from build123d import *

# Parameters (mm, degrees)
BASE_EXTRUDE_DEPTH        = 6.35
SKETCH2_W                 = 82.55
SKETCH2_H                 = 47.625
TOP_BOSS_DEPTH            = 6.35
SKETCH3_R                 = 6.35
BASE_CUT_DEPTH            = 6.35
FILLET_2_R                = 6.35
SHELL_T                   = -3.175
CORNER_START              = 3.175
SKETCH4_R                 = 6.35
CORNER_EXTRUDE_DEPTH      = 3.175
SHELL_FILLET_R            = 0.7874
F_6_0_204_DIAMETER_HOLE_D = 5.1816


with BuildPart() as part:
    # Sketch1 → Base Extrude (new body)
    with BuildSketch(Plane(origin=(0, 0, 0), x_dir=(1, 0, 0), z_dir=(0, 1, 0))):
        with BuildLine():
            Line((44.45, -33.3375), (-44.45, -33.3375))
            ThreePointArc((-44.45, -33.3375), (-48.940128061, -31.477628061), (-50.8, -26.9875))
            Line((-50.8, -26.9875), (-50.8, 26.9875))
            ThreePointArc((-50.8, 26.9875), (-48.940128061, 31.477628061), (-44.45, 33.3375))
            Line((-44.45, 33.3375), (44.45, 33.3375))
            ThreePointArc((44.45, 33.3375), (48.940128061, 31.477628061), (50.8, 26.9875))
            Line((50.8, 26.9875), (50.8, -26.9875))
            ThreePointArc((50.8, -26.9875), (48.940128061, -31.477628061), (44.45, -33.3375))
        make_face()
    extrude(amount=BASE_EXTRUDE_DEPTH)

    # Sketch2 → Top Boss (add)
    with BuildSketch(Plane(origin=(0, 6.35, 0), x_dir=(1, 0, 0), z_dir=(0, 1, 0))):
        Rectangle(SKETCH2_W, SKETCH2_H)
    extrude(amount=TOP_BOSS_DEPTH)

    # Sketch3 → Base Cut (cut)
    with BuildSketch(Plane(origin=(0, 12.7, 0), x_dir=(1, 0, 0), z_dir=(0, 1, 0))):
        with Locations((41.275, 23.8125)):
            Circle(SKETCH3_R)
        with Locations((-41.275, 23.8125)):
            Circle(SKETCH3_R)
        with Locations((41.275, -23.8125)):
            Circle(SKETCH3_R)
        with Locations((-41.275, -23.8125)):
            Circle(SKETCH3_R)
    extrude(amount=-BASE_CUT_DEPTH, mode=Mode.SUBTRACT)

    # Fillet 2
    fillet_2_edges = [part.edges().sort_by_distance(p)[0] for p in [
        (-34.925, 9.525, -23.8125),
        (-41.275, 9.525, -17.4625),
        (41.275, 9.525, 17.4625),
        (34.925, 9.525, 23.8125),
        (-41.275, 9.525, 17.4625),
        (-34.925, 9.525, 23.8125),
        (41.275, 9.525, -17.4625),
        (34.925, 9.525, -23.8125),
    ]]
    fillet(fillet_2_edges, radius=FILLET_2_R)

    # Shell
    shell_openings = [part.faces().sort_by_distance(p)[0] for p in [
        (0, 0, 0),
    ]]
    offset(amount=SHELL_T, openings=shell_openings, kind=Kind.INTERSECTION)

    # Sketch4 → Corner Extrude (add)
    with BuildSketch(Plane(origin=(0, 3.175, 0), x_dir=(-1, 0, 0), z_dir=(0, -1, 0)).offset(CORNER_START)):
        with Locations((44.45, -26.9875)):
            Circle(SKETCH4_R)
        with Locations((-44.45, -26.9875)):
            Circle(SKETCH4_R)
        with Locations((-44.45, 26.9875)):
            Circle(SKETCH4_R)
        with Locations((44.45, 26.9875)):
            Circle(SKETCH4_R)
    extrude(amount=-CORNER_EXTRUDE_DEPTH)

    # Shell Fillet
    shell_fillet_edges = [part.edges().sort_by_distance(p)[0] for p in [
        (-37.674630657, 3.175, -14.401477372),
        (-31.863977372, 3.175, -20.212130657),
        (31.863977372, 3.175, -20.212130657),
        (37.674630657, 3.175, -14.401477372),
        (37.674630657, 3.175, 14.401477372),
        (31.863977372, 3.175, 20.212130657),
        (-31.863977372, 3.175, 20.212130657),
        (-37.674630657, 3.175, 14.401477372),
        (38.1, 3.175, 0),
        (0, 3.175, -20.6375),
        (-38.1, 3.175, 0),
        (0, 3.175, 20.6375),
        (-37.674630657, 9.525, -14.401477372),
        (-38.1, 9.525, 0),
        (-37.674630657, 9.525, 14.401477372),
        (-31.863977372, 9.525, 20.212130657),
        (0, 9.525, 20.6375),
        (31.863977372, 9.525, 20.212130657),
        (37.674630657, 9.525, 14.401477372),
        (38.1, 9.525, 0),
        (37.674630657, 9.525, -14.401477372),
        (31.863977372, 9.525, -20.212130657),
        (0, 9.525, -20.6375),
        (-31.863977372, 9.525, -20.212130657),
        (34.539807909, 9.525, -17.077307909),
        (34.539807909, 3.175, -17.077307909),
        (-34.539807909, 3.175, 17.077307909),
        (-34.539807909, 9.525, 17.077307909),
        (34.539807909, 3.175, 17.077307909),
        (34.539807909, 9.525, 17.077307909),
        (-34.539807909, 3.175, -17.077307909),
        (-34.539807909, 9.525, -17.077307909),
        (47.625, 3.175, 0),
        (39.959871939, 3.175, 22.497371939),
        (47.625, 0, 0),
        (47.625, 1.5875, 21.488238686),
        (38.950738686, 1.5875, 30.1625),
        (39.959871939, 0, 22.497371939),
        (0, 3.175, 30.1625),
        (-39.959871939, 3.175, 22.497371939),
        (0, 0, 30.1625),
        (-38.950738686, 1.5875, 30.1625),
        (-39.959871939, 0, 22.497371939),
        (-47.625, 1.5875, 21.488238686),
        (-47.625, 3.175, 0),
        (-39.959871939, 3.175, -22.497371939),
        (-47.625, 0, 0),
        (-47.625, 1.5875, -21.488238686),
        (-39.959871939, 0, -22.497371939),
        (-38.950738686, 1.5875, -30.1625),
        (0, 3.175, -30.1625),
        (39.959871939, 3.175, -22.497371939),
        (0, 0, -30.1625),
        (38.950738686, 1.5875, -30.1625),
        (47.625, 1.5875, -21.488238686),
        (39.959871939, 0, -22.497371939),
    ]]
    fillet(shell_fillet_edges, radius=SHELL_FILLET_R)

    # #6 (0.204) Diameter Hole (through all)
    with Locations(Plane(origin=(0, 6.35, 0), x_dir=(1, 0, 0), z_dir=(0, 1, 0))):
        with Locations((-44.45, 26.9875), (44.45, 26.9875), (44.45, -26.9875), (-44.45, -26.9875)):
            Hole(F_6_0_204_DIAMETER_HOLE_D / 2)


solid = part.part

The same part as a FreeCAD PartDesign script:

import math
import FreeCAD as App
import Part
import Sketcher
Q = App.Units.Quantity


def edges_at(feature, points):
    """Names of the edges that pass closest to the given points."""
    edges = feature.Shape.Edges
    near = lambda p: min(range(len(edges)), key=lambda i: edges[i].distToShape(Part.Vertex(*p))[0])
    return sorted({f"Edge{near(p) + 1}" for p in points})


def faces_at(feature, points):
    """Names of the faces that lie closest to the given points."""
    faces = feature.Shape.Faces
    near = lambda p: min(range(len(faces)), key=lambda i: faces[i].distToShape(Part.Vertex(*p))[0])
    return sorted({f"Face{near(p) + 1}" for p in points})


def add_polygon(sketch, points):
    """Adds a closed chain of lines whose ends are joined by coincident constraints."""
    first, n = sketch.GeometryCount, len(points)
    for a, b in zip(points, points[1:] + points[:1]):
        sketch.addGeometry(Part.LineSegment(App.Vector(*a, 0), App.Vector(*b, 0)), False)
    for i in range(n):
        sketch.addConstraint(Sketcher.Constraint("Coincident", first + i, 2, first + (i + 1) % n, 1))

doc = App.newDocument("Part")
body = doc.addObject("PartDesign::Body", "Body")

# Sketch on XZ plane
sketch1 = body.newObject("Sketcher::SketchObject", "Sketch")
sketch1.AttachmentSupport = (doc.getObject("XZ_Plane"), [""])
sketch1.MapMode = "FlatFace"
sketch1.addGeometry(Part.LineSegment(App.Vector(-44, 33, 0), App.Vector(44, 33, 0)), False)
sketch1.addGeometry(Part.ArcOfCircle(Part.Circle(App.Vector(44, 27, 0), App.Vector(0, 0, 1), 6), math.radians(0), math.radians(90)), False)
sketch1.addGeometry(Part.LineSegment(App.Vector(51, 27, 0), App.Vector(51, -27, 0)), False)
sketch1.addGeometry(Part.ArcOfCircle(Part.Circle(App.Vector(44, -27, 0), App.Vector(0, 0, 1), 6), math.radians(-90), math.radians(0)), False)
sketch1.addGeometry(Part.LineSegment(App.Vector(44, -33, 0), App.Vector(-44, -33, 0)), False)
sketch1.addGeometry(Part.ArcOfCircle(Part.Circle(App.Vector(-44, -27, 0), App.Vector(0, 0, 1), 6), math.radians(180), math.radians(270)), False)
sketch1.addGeometry(Part.LineSegment(App.Vector(-51, -27, 0), App.Vector(-51, 27, 0)), False)
sketch1.addGeometry(Part.ArcOfCircle(Part.Circle(App.Vector(-44, 27, 0), App.Vector(0, 0, 1), 6), math.radians(90), math.radians(180)), False)
sketch1.addConstraint(Sketcher.Constraint("Tangent", 0, 2, 1, 2))
sketch1.addConstraint(Sketcher.Constraint("Tangent", 1, 1, 2, 1))
sketch1.addConstraint(Sketcher.Constraint("Tangent", 2, 2, 3, 2))
sketch1.addConstraint(Sketcher.Constraint("Tangent", 3, 1, 4, 1))
sketch1.addConstraint(Sketcher.Constraint("Tangent", 4, 2, 5, 2))
sketch1.addConstraint(Sketcher.Constraint("Tangent", 5, 1, 6, 1))
sketch1.addConstraint(Sketcher.Constraint("Tangent", 6, 2, 7, 2))
sketch1.addConstraint(Sketcher.Constraint("Tangent", 7, 1, 0, 1))
sketch1.addConstraint(Sketcher.Constraint("Horizontal", 0))
sketch1.addConstraint(Sketcher.Constraint("Vertical", 2))
sketch1.addConstraint(Sketcher.Constraint("Horizontal", 4))
sketch1.addConstraint(Sketcher.Constraint("Vertical", 6))
sketch1.addConstraint(Sketcher.Constraint("Equal", 1, 3))
sketch1.addConstraint(Sketcher.Constraint("Equal", 3, 5))
sketch1.addConstraint(Sketcher.Constraint("Equal", 5, 7))
sketch1.addConstraint(Sketcher.Constraint("Symmetric", 1, 3, 5, 3, -1, 1))
sketch1.addConstraint(Sketcher.Constraint("Radius", 1, Q("0.25 in")))
sketch1.addConstraint(Sketcher.Constraint("DistanceX", 0, 1, 0, 2, Q("3.5 in")))
sketch1.addConstraint(Sketcher.Constraint("DistanceY", 2, 2, 2, 1, Q("2.125 in")))
pad1 = body.newObject("PartDesign::Pad", "Pad")
pad1.Profile = sketch1
pad1.Length = Q("0.25 in")
pad1.Reversed = True

# Sketch on XZ plane
sketch2 = body.newObject("Sketcher::SketchObject", "Sketch001")
sketch2.AttachmentSupport = (doc.getObject("XZ_Plane"), [""])
sketch2.MapMode = "FlatFace"
sketch2.AttachmentOffset = App.Placement(App.Vector(0, 0, -0.25 * 25.4), App.Rotation())
add_polygon(sketch2, [(-41, -24), (-41, 24), (41, 24), (41, -24)])  # lines 0-3
sketch2.addConstraint(Sketcher.Constraint("Vertical", 0))
sketch2.addConstraint(Sketcher.Constraint("Horizontal", 1))
sketch2.addConstraint(Sketcher.Constraint("Vertical", 2))
sketch2.addConstraint(Sketcher.Constraint("Horizontal", 3))
sketch2.addConstraint(Sketcher.Constraint("Symmetric", 0, 2, 2, 2, -1, 1))
sketch2.addConstraint(Sketcher.Constraint("DistanceX", 1, 1, 1, 2, Q("3.25 in")))
sketch2.addConstraint(Sketcher.Constraint("DistanceY", 0, 1, 0, 2, Q("1.875 in")))
pad2 = body.newObject("PartDesign::Pad", "Pad001")
pad2.Profile = sketch2
pad2.Length = Q("0.25 in")
pad2.Reversed = True

# Sketch on XZ plane
sketch3 = body.newObject("Sketcher::SketchObject", "Sketch002")
sketch3.AttachmentSupport = (doc.getObject("XZ_Plane"), [""])
sketch3.MapMode = "FlatFace"
sketch3.AttachmentOffset = App.Placement(App.Vector(0, 0, -0.5 * 25.4), App.Rotation())
sketch3.addGeometry(Part.Circle(App.Vector(41, -24, 0), App.Vector(0, 0, 1), 6), False)
sketch3.addGeometry(Part.Circle(App.Vector(-41, -24, 0), App.Vector(0, 0, 1), 6), False)
sketch3.addGeometry(Part.Circle(App.Vector(41, 24, 0), App.Vector(0, 0, 1), 6), False)
sketch3.addGeometry(Part.Circle(App.Vector(-41, 24, 0), App.Vector(0, 0, 1), 6), False)
sketch3.addConstraint(Sketcher.Constraint("Equal", 0, 1))
sketch3.addConstraint(Sketcher.Constraint("Equal", 1, 2))
sketch3.addConstraint(Sketcher.Constraint("Equal", 2, 3))
sketch3.addConstraint(Sketcher.Constraint("Symmetric", 1, 3, 2, 3, -1, 1))
sketch3.addConstraint(Sketcher.Constraint("Symmetric", 0, 3, 3, 3, -1, 1))
sketch3.addConstraint(Sketcher.Constraint("Symmetric", 0, 3, 1, 3, -2))
sketch3.addConstraint(Sketcher.Constraint("Diameter", 0, Q("0.5 in")))
sketch3.addConstraint(Sketcher.Constraint("DistanceX", 1, 3, 0, 3, Q("3.25 in")))
sketch3.addConstraint(Sketcher.Constraint("DistanceY", 0, 3, -1, 1, Q("0.9375 in")))
pocket1 = body.newObject("PartDesign::Pocket", "Pocket")
pocket1.Profile = sketch3
pocket1.Length = Q("0.25 in")
pocket1.Reversed = True
doc.recompute()

fillet = body.newObject("PartDesign::Fillet", "Fillet")
fillet.Base = (pocket1, edges_at(pocket1, [
    (-34.925, 9.525, -23.812),
    (-41.275, 9.525, -17.462),
    (41.275, 9.525, 17.462),
    (34.925, 9.525, 23.812),
    (-41.275, 9.525, 17.462),
    (-34.925, 9.525, 23.812),
    (41.275, 9.525, -17.462),
    (34.925, 9.525, -23.812),
]))
fillet.Radius = Q("0.25 in")
doc.recompute()

thickness = body.newObject("PartDesign::Thickness", "Thickness")
thickness.Base = (fillet, faces_at(fillet, [(0, 0, 0)]))
thickness.Value = Q("0.125 in")
thickness.Reversed = True
thickness.Join = "Intersection"

# Sketch on XZ plane
sketch4 = body.newObject("Sketcher::SketchObject", "Sketch003")
sketch4.AttachmentSupport = (doc.getObject("XZ_Plane"), [""])
sketch4.MapMode = "FlatFace"
sketch4.addGeometry(Part.Circle(App.Vector(-44, 27, 0), App.Vector(0, 0, 1), 6), False)
sketch4.addGeometry(Part.Circle(App.Vector(44, 27, 0), App.Vector(0, 0, 1), 6), False)
sketch4.addGeometry(Part.Circle(App.Vector(44, -27, 0), App.Vector(0, 0, 1), 6), False)
sketch4.addGeometry(Part.Circle(App.Vector(-44, -27, 0), App.Vector(0, 0, 1), 6), False)
sketch4.addConstraint(Sketcher.Constraint("Equal", 0, 1))
sketch4.addConstraint(Sketcher.Constraint("Equal", 1, 2))
sketch4.addConstraint(Sketcher.Constraint("Equal", 2, 3))
sketch4.addConstraint(Sketcher.Constraint("Symmetric", 0, 3, 2, 3, -1, 1))
sketch4.addConstraint(Sketcher.Constraint("Symmetric", 1, 3, 3, 3, -1, 1))
sketch4.addConstraint(Sketcher.Constraint("Symmetric", 0, 3, 1, 3, -2))
sketch4.addConstraint(Sketcher.Constraint("Diameter", 0, Q("0.5 in")))
sketch4.addConstraint(Sketcher.Constraint("DistanceX", 0, 3, 1, 3, Q("3.5 in")))
sketch4.addConstraint(Sketcher.Constraint("DistanceY", -1, 1, 0, 3, Q("1.0625 in")))
pad3 = body.newObject("PartDesign::Pad", "Pad002")
pad3.Profile = sketch4
pad3.Length = Q("0.125 in")
pad3.Reversed = True
doc.recompute()

fillet2 = body.newObject("PartDesign::Fillet", "Fillet001")
fillet2.Base = (pad3, edges_at(pad3, [
    (-37.675, 3.175, -14.401),
    (-31.864, 3.175, -20.212),
    (31.864, 3.175, -20.212),
    (37.675, 3.175, -14.401),
    (37.675, 3.175, 14.401),
    (31.864, 3.175, 20.212),
    (-31.864, 3.175, 20.212),
    (-37.675, 3.175, 14.401),
    (38.1, 3.175, 0),
    (0, 3.175, -20.637),
    (-38.1, 3.175, 0),
    (0, 3.175, 20.637),
    (-37.675, 9.525, -14.401),
    (-38.1, 9.525, 0),
    (-37.675, 9.525, 14.401),
    (-31.864, 9.525, 20.212),
    (0, 9.525, 20.637),
    (31.864, 9.525, 20.212),
    (37.675, 9.525, 14.401),
    (38.1, 9.525, 0),
    (37.675, 9.525, -14.401),
    (31.864, 9.525, -20.212),
    (0, 9.525, -20.637),
    (-31.864, 9.525, -20.212),
    (34.54, 9.525, -17.077),
    (34.54, 3.175, -17.077),
    (-34.54, 3.175, 17.077),
    (-34.54, 9.525, 17.077),
    (34.54, 3.175, 17.077),
    (34.54, 9.525, 17.077),
    (-34.54, 3.175, -17.077),
    (-34.54, 9.525, -17.077),
    (47.625, 3.175, 0),
    (39.96, 3.175, 22.497),
    (47.625, 0, 0),
    (47.625, 1.587, 21.488),
    (38.951, 1.587, 30.163),
    (39.96, 0, 22.497),
    (0, 3.175, 30.163),
    (-39.96, 3.175, 22.497),
    (0, 0, 30.163),
    (-38.951, 1.587, 30.163),
    (-39.96, 0, 22.497),
    (-47.625, 1.587, 21.488),
    (-47.625, 3.175, 0),
    (-39.96, 3.175, -22.497),
    (-47.625, 0, 0),
    (-47.625, 1.587, -21.488),
    (-39.96, 0, -22.497),
    (-38.951, 1.587, -30.163),
    (0, 3.175, -30.163),
    (39.96, 3.175, -22.497),
    (0, 0, -30.163),
    (38.951, 1.587, -30.163),
    (47.625, 1.587, -21.488),
    (39.96, 0, -22.497),
]))
fillet2.Radius = Q("0.031 in")

# Sketch on XZ plane
sketch5 = body.newObject("Sketcher::SketchObject", "Sketch004")
sketch5.AttachmentSupport = (doc.getObject("XZ_Plane"), [""])
sketch5.MapMode = "FlatFace"
sketch5.AttachmentOffset = App.Placement(App.Vector(0, 0, -0.25 * 25.4), App.Rotation())
sketch5.addGeometry(Part.Circle(App.Vector(-44.5, -27, 0), App.Vector(0, 0, 1), 2.6), False)
sketch5.addGeometry(Part.Circle(App.Vector(44.5, -27, 0), App.Vector(0, 0, 1), 2.6), False)
sketch5.addGeometry(Part.Circle(App.Vector(44.5, 27, 0), App.Vector(0, 0, 1), 2.6), False)
sketch5.addGeometry(Part.Circle(App.Vector(-44.5, 27, 0), App.Vector(0, 0, 1), 2.6), False)
sketch5.addConstraint(Sketcher.Constraint("Equal", 0, 1))
sketch5.addConstraint(Sketcher.Constraint("Equal", 1, 2))
sketch5.addConstraint(Sketcher.Constraint("Equal", 2, 3))
sketch5.addConstraint(Sketcher.Constraint("Symmetric", 0, 3, 2, 3, -1, 1))
sketch5.addConstraint(Sketcher.Constraint("Symmetric", 1, 3, 3, 3, -1, 1))
sketch5.addConstraint(Sketcher.Constraint("Symmetric", 0, 3, 1, 3, -2))
sketch5.addConstraint(Sketcher.Constraint("Diameter", 0, Q("0.204 in")))
sketch5.addConstraint(Sketcher.Constraint("DistanceX", 0, 3, 1, 3, Q("3.5 in")))
sketch5.addConstraint(Sketcher.Constraint("DistanceY", 0, 3, -1, 1, Q("1.0625 in")))
doc.recompute()
hole = body.newObject("PartDesign::Hole", "Hole")
hole.Profile = sketch5
hole.ThreadType = "None"
hole.Diameter = Q("0.204 in")
hole.DepthType = "ThroughAll"
hole.Reversed = True

doc.recompute()
